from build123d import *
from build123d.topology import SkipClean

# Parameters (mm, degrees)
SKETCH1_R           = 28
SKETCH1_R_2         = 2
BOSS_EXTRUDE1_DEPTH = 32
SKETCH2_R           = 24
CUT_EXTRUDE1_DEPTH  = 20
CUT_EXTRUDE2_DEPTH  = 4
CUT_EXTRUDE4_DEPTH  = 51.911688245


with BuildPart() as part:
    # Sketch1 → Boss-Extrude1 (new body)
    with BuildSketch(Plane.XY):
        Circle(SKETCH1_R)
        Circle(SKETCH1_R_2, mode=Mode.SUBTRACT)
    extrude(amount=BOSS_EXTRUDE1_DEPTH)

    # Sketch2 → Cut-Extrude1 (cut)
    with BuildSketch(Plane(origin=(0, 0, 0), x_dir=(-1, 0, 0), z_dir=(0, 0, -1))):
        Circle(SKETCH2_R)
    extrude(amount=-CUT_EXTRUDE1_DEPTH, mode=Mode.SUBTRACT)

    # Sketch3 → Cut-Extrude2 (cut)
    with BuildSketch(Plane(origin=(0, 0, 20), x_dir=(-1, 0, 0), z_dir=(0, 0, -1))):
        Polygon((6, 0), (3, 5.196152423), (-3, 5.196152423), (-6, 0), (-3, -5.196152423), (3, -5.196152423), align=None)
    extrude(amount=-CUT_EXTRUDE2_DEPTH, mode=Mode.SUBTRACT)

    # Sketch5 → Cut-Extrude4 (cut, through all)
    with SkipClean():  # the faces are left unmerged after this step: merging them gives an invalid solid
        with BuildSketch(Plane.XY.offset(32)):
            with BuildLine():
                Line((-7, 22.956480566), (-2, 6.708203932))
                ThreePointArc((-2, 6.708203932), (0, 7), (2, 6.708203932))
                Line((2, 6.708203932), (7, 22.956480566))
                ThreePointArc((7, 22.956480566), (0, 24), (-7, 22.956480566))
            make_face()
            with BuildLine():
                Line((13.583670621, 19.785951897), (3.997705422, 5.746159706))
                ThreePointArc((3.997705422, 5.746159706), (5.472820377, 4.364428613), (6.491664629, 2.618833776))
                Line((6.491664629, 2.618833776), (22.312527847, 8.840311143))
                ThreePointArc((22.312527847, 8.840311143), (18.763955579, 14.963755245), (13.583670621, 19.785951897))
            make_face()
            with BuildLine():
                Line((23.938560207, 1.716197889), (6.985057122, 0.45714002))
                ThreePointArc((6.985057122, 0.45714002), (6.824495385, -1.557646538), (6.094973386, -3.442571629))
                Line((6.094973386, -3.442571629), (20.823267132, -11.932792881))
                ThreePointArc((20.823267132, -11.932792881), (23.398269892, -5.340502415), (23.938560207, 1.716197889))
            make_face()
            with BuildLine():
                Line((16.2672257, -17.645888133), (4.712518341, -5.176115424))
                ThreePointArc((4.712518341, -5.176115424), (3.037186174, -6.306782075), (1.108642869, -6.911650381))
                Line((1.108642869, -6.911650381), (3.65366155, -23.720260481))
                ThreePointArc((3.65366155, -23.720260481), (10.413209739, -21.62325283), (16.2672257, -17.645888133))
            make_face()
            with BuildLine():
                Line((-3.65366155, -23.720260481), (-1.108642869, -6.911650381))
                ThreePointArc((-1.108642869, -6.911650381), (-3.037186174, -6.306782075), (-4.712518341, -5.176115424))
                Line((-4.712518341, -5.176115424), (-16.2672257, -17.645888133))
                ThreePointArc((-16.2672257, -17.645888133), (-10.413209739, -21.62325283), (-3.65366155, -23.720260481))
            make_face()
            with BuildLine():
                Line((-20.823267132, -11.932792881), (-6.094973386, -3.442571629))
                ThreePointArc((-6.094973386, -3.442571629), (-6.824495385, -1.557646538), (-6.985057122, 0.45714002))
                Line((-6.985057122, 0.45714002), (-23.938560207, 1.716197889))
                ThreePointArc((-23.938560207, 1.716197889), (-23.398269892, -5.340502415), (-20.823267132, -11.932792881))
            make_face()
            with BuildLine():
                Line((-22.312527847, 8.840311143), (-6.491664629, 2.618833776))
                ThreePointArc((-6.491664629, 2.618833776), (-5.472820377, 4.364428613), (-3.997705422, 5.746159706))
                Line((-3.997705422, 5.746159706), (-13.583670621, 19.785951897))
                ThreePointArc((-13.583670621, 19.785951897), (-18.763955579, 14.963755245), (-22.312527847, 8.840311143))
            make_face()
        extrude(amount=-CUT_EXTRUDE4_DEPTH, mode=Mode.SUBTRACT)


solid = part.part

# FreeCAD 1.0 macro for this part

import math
import FreeCAD as App
import Part
import Sketcher
from FreeCAD import Vector
Q = App.Units.Quantity


def add_polygon(sketch, points):
    """Adds a closed chain of lines whose ends are joined by coincident constraints."""
    first, n = sketch.GeometryCount, len(points)
    for a, b in zip(points, points[1:] + points[:1]):
        sketch.addGeometry(Part.LineSegment(App.Vector(*a, 0), App.Vector(*b, 0)), False)
    for i in range(n):
        sketch.addConstraint(Sketcher.Constraint("Coincident", first + i, 2, first + (i + 1) % n, 1))

doc = App.newDocument("Part")
body = doc.addObject("PartDesign::Body", "Body")

sketch1 = body.newObject("Sketcher::SketchObject", "Sketch")
sketch1.AttachmentSupport = (doc.getObject("XY_Plane"), [""])
sketch1.MapMode = "FlatFace"
sketch1.addGeometry([
    Part.Circle(Vector(0, 0, 0), Vector(0, 0, 1), 28),
    Part.Circle(Vector(0, 0, 0), Vector(0, 0, 1), 2),
], False)
sketch1.addConstraint([
    Sketcher.Constraint("Coincident", 0, 3, -1, 1),
    Sketcher.Constraint("Coincident", 1, 3, -1, 1),
    Sketcher.Constraint("Diameter", 0, Q("56 mm")),
    Sketcher.Constraint("Diameter", 1, Q("4 mm")),
])
pad1 = body.newObject("PartDesign::Pad", "Pad")
pad1.Profile = sketch1
pad1.Length = 32

sketch2 = body.newObject("Sketcher::SketchObject", "Sketch001")
sketch2.AttachmentSupport = (doc.getObject("XY_Plane"), [""])
sketch2.MapMode = "FlatFace"
sketch2.addGeometry(Part.Circle(Vector(0, 0, 0), Vector(0, 0, 1), 24), False)
sketch2.addConstraint([
    Sketcher.Constraint("Coincident", 0, 3, -1, 1),
    Sketcher.Constraint("Diameter", 0, Q("48 mm")),
])
pocket1 = body.newObject("PartDesign::Pocket", "Pocket")
pocket1.Profile = sketch2
pocket1.Length = 20
pocket1.Reversed = True

sketch3 = body.newObject("Sketcher::SketchObject", "Sketch002")
sketch3.AttachmentSupport = (doc.getObject("XY_Plane"), [""])
sketch3.MapMode = "FlatFace"
sketch3.AttachmentOffset = App.Placement(Vector(0, 0, 20), App.Rotation())
add_polygon(sketch3, [(-6, 0), (-3, 5.196152), (3, 5.196152), (6, 0), (3, -5.196152), (-3, -5.196152)])
sketch3.addConstraint([
    Sketcher.Constraint("Horizontal", 1),
    Sketcher.Constraint("Horizontal", 4),
    Sketcher.Constraint("Symmetric", 0, 2, 3, 2, -1, 1),
    Sketcher.Constraint("Symmetric", 2, 2, 5, 2, -1, 1),
    Sketcher.Constraint("PointOnObject", 2, 2, -1),
    Sketcher.Constraint("Parallel", 2, 5),
    Sketcher.Constraint("Vertical", 1, 2, 3, 2),
    Sketcher.Constraint("DistanceX", 1, 1, 1, 2, Q("6 mm")),
    Sketcher.Constraint("Angle", 0, Q("60 deg")),
    Sketcher.Constraint("Distance", 0, Q("6 mm")),
])
pocket2 = body.newObject("PartDesign::Pocket", "Pocket001")
pocket2.Profile = sketch3
pocket2.Length = 4
pocket2.Reversed = True

sketch4 = body.newObject("Sketcher::SketchObject", "Sketch003")
sketch4.AttachmentSupport = (doc.getObject("XY_Plane"), [""])
sketch4.MapMode = "FlatFace"
sketch4.AttachmentOffset = App.Placement(Vector(0, 0, 32), App.Rotation())
sketch4.addGeometry([
    Part.LineSegment(Vector(-7, 22.956481, 0), Vector(-2, 6.708204, 0)),
    Part.ArcOfCircle(Part.Circle(Vector(0, 0, 0), Vector(0, 0, 1), 7), math.radians(73.39845), math.radians(106.60155)),
    Part.LineSegment(Vector(2, 6.708204, 0), Vector(7, 22.956481, 0)),
    Part.ArcOfCircle(Part.Circle(Vector(0, 0, 0), Vector(0, 0, 1), 24), math.radians(73.042237), math.radians(106.957763)),
    Part.LineSegment(Vector(13.583671, 19.785952, 0), Vector(3.997705, 5.74616, 0)),
    Part.ArcOfCircle(Part.Circle(Vector(0, 0, 0), Vector(0, 0, 1), 7), math.radians(21.969879), math.radians(55.172978)),
    Part.LineSegment(Vector(6.491665, 2.618834, 0), Vector(22.312528, 8.840311, 0)),
    Part.ArcOfCircle(Part.Circle(Vector(0, 0, 0), Vector(0, 0, 1), 24), math.radians(21.613665), math.radians(55.529192)),
    Part.LineSegment(Vector(23.93856, 1.716198, 0), Vector(6.985057, 0.45714, 0)),
    Part.ArcOfCircle(Part.Circle(Vector(0, 0, 0), Vector(0, 0, 1), 7), math.radians(-29.458692), math.radians(3.744407)),
    Part.LineSegment(Vector(6.094973, -3.442572, 0), Vector(20.823267, -11.932793, 0)),
    Part.ArcOfCircle(Part.Circle(Vector(0, 0, 0), Vector(0, 0, 1), 24), math.radians(-29.814906), math.radians(4.10062)),
    Part.LineSegment(Vector(16.267226, -17.645888, 0), Vector(4.712518, -5.176115, 0)),
    Part.ArcOfCircle(Part.Circle(Vector(0, 0, 0), Vector(0, 0, 1), 7), math.radians(-80.887264), math.radians(-47.684165)),
    Part.LineSegment(Vector(1.108643, -6.91165, 0), Vector(3.653662, -23.72026, 0)),
    Part.ArcOfCircle(Part.Circle(Vector(0, 0, 0), Vector(0, 0, 1), 24), math.radians(-81.243478), math.radians(-47.327951)),
    Part.LineSegment(Vector(-3.653662, -23.72026, 0), Vector(-1.108643, -6.91165, 0)),
    Part.ArcOfCircle(Part.Circle(Vector(0, 0, 0), Vector(0, 0, 1), 7), math.radians(-132.315835), math.radians(-99.112736)),
    Part.LineSegment(Vector(-4.712518, -5.176115, 0), Vector(-16.267226, -17.645888, 0)),
    Part.ArcOfCircle(Part.Circle(Vector(0, 0, 0), Vector(0, 0, 1), 24), math.radians(-132.672049), math.radians(-98.756522)),
    Part.LineSegment(Vector(-20.823267, -11.932793, 0), Vector(-6.094973, -3.442572, 0)),
    Part.ArcOfCircle(Part.Circle(Vector(0, 0, 0), Vector(0, 0, 1), 7), math.radians(176.255593), math.radians(209.458692)),
    Part.LineSegment(Vector(-6.985057, 0.45714, 0), Vector(-23.93856, 1.716198, 0)),
    Part.ArcOfCircle(Part.Circle(Vector(0, 0, 0), Vector(0, 0, 1), 24), math.radians(175.89938), math.radians(209.814906)),
    Part.LineSegment(Vector(-22.312528, 8.840311, 0), Vector(-6.491665, 2.618834, 0)),
    Part.ArcOfCircle(Part.Circle(Vector(0, 0, 0), Vector(0, 0, 1), 7), math.radians(124.827022), math.radians(158.030121)),
    Part.LineSegment(Vector(-3.997705, 5.74616, 0), Vector(-13.583671, 19.785952, 0)),
    Part.ArcOfCircle(Part.Circle(Vector(0, 0, 0), Vector(0, 0, 1), 24), math.radians(124.470808), math.radians(158.386335)),
], False)
sketch4.addConstraint([
    Sketcher.Constraint("Coincident", 0, 2, 1, 2),
    Sketcher.Constraint("Coincident", 1, 1, 2, 1),
    Sketcher.Constraint("Coincident", 2, 2, 3, 1),
    Sketcher.Constraint("Coincident", 3, 2, 0, 1),
    Sketcher.Constraint("Coincident", 4, 2, 5, 2),
    Sketcher.Constraint("Coincident", 5, 1, 6, 1),
    Sketcher.Constraint("Coincident", 6, 2, 7, 1),
    Sketcher.Constraint("Coincident", 7, 2, 4, 1),
    Sketcher.Constraint("Coincident", 8, 2, 9, 2),
    Sketcher.Constraint("Coincident", 9, 1, 10, 1),
    Sketcher.Constraint("Coincident", 10, 2, 11, 1),
    Sketcher.Constraint("Coincident", 11, 2, 8, 1),
    Sketcher.Constraint("Coincident", 12, 2, 13, 2),
    Sketcher.Constraint("Coincident", 13, 1, 14, 1),
    Sketcher.Constraint("Coincident", 14, 2, 15, 1),
    Sketcher.Constraint("Coincident", 15, 2, 12, 1),
    Sketcher.Constraint("Coincident", 16, 2, 17, 2),
    Sketcher.Constraint("Coincident", 17, 1, 18, 1),
    Sketcher.Constraint("Coincident", 18, 2, 19, 1),
    Sketcher.Constraint("Coincident", 19, 2, 16, 1),
    Sketcher.Constraint("Coincident", 20, 2, 21, 2),
    Sketcher.Constraint("Coincident", 21, 1, 22, 1),
    Sketcher.Constraint("Coincident", 22, 2, 23, 1),
    Sketcher.Constraint("Coincident", 23, 2, 20, 1),
    Sketcher.Constraint("Coincident", 24, 2, 25, 2),
    Sketcher.Constraint("Coincident", 25, 1, 26, 1),
    Sketcher.Constraint("Coincident", 26, 2, 27, 1),
    Sketcher.Constraint("Coincident", 27, 2, 24, 1),
    Sketcher.Constraint("Coincident", 1, 3, -1, 1),
    Sketcher.Constraint("Coincident", 3, 3, -1, 1),
    Sketcher.Constraint("Coincident", 5, 3, -1, 1),
    Sketcher.Constraint("Coincident", 7, 3, -1, 1),
    Sketcher.Constraint("Coincident", 9, 3, -1, 1),
    Sketcher.Constraint("Coincident", 11, 3, -1, 1),
    Sketcher.Constraint("Coincident", 13, 3, -1, 1),
    Sketcher.Constraint("Coincident", 15, 3, -1, 1),
    Sketcher.Constraint("Coincident", 17, 3, -1, 1),
    Sketcher.Constraint("Coincident", 19, 3, -1, 1),
    Sketcher.Constraint("Coincident", 21, 3, -1, 1),
    Sketcher.Constraint("Coincident", 23, 3, -1, 1),
    Sketcher.Constraint("Coincident", 25, 3, -1, 1),
    Sketcher.Constraint("Coincident", 27, 3, -1, 1),
    Sketcher.Constraint("Equal", 1, 5),
    Sketcher.Constraint("Equal", 3, 7),
    Sketcher.Constraint("Equal", 5, 9),
    Sketcher.Constraint("Equal", 7, 11),
    Sketcher.Constraint("Equal", 9, 13),
    Sketcher.Constraint("Equal", 11, 15),
    Sketcher.Constraint("Equal", 13, 17),
    Sketcher.Constraint("Equal", 15, 19),
    Sketcher.Constraint("Equal", 17, 21),
    Sketcher.Constraint("Equal", 19, 23),
    Sketcher.Constraint("Equal", 21, 25),
    Sketcher.Constraint("Equal", 23, 27),
    Sketcher.Constraint("Horizontal", 0, 2, 1, 1),
    Sketcher.Constraint("Horizontal", 2, 2, 3, 2),
    Sketcher.Constraint("Horizontal", 13, 1, 16, 2),
    Sketcher.Constraint("Horizontal", 12, 2, 17, 1),
    Sketcher.Constraint("Horizontal", 15, 2, 18, 2),
    Sketcher.Constraint("Horizontal", 14, 2, 19, 2),
    Sketcher.Constraint("Horizontal", 9, 1, 20, 2),
    Sketcher.Constraint("Horizontal", 8, 2, 21, 1),
    Sketcher.Constraint("Horizontal", 11, 2, 22, 2),
    Sketcher.Constraint("Horizontal", 10, 2, 23, 2),
    Sketcher.Constraint("Horizontal", 5, 1, 24, 2),
    Sketcher.Constraint("Horizontal", 4, 2, 25, 1),
    Sketcher.Constraint("Horizontal", 7, 2, 26, 2),
    Sketcher.Constraint("Horizontal", 6, 2, 27, 2),
    Sketcher.Constraint("Equal", 2, 4),
    Sketcher.Constraint("Equal", 4, 6),
    Sketcher.Constraint("Equal", 6, 8),
    Sketcher.Constraint("Equal", 8, 10),
    Sketcher.Constraint("Equal", 10, 12),
    Sketcher.Constraint("Equal", 12, 14),
    Sketcher.Constraint("Radius", 1, Q("7 mm")),
    Sketcher.Constraint("Radius", 3, Q("24 mm")),
    Sketcher.Constraint("DistanceX", 0, 2, -1, 1, Q("2 mm")),
    Sketcher.Constraint("DistanceX", -1, 1, 2, 2, Q("7 mm")),
    Sketcher.Constraint("DistanceY", -1, 1, 4, 2, Q("5.74616 mm")),
    Sketcher.Constraint("DistanceY", -1, 1, 6, 2, Q("8.840311 mm")),
    Sketcher.Constraint("DistanceY", -1, 1, 8, 2, Q("0.45714 mm")),
    Sketcher.Constraint("DistanceY", 9, 1, -1, 1, Q("3.442572 mm")),
    Sketcher.Constraint("DistanceX", -1, 1, 12, 2, Q("4.712518 mm")),
    Sketcher.Constraint("DistanceY", 13, 1, -1, 1, Q("6.91165 mm")),
])
pocket3 = body.newObject("PartDesign::Pocket", "Pocket002")
pocket3.Profile = sketch4
pocket3.Type = "ThroughAll"

doc.recompute()
